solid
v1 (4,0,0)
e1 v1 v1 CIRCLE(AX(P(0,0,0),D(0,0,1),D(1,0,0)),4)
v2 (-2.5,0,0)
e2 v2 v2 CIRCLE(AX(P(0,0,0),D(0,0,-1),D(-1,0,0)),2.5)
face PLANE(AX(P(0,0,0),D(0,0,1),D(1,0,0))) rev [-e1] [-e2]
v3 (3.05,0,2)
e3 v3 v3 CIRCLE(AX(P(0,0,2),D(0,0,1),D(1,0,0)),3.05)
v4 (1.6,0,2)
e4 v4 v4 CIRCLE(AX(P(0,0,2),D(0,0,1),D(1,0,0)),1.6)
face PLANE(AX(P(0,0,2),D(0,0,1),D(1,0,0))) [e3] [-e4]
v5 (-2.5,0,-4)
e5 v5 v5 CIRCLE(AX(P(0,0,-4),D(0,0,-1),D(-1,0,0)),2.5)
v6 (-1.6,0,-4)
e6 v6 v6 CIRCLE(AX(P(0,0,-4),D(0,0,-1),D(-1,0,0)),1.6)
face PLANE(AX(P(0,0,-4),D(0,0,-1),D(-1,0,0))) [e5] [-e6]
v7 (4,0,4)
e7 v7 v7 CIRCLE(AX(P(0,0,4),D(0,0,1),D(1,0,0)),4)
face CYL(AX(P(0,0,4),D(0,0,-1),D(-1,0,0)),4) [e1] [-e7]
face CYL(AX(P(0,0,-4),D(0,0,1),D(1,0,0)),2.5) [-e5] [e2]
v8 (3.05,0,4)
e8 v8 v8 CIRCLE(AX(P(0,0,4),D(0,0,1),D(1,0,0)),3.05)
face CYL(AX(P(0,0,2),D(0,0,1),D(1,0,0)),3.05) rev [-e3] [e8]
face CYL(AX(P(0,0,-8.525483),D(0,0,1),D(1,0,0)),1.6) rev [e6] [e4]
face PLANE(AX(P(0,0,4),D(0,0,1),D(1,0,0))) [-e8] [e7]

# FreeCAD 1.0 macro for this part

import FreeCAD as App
import Part
import Sketcher

doc = App.newDocument("Part")
body = doc.addObject("PartDesign::Body", "Body")

# Sketch on XY plane
sketch1 = body.newObject("Sketcher::SketchObject", "Sketch")
sketch1.AttachmentSupport = (doc.getObject("XY_Plane"), [""])
sketch1.MapMode = "FlatFace"
sketch1.addGeometry(Part.Circle(App.Vector(0, 0, 0), App.Vector(0, 0, 1), 4), False)
sketch1.addConstraint(Sketcher.Constraint("Coincident", 0, 3, -1, 1))
sketch1.addConstraint(Sketcher.Constraint("Diameter", 0, 8.0))
pad1 = body.newObject("PartDesign::Pad", "Pad")
pad1.Profile = sketch1
pad1.Length = 4

# Sketch on XY plane
sketch2 = body.newObject("Sketcher::SketchObject", "Sketch001")
sketch2.AttachmentSupport = (doc.getObject("XY_Plane"), [""])
sketch2.MapMode = "FlatFace"
sketch2.addGeometry(Part.Circle(App.Vector(0, 0, 0), App.Vector(0, 0, 1), 2.5), False)
sketch2.addConstraint(Sketcher.Constraint("Coincident", 0, 3, -1, 1))
sketch2.addConstraint(Sketcher.Constraint("Diameter", 0, 5.0))
pad2 = body.newObject("PartDesign::Pad", "Pad001")
pad2.Profile = sketch2
pad2.Length = 4
pad2.Reversed = True

# Sketch on XY plane
sketch3 = body.newObject("Sketcher::SketchObject", "Sketch002")
sketch3.AttachmentSupport = (doc.getObject("XY_Plane"), [""])
sketch3.MapMode = "FlatFace"
sketch3.addGeometry(Part.Circle(App.Vector(0, 0, 0), App.Vector(0, 0, 1), 1.6), False)
sketch3.addConstraint(Sketcher.Constraint("Coincident", 0, 3, -1, 1))
sketch3.addConstraint(Sketcher.Constraint("Diameter", 0, 3.2))
pocket1 = body.newObject("PartDesign::Pocket", "Pocket")
pocket1.Profile = sketch3
pocket1.Type = "TwoLengths"
pocket1.Length = 4
pocket1.Length2 = 3

# Sketch on XY plane
sketch4 = body.newObject("Sketcher::SketchObject", "Sketch003")
sketch4.AttachmentSupport = (doc.getObject("XY_Plane"), [""])
sketch4.MapMode = "FlatFace"
sketch4.AttachmentOffset = App.Placement(App.Vector(0, 0, 4), App.Rotation())
sketch4.addGeometry(Part.Circle(App.Vector(0, 0, 0), App.Vector(0, 0, 1), 3), False)
sketch4.addConstraint(Sketcher.Constraint("Coincident", 0, 3, -1, 1))
sketch4.addConstraint(Sketcher.Constraint("Diameter", 0, 6.1))
pocket2 = body.newObject("PartDesign::Pocket", "Pocket001")
pocket2.Profile = sketch4
pocket2.Length = 2

doc.recompute()
